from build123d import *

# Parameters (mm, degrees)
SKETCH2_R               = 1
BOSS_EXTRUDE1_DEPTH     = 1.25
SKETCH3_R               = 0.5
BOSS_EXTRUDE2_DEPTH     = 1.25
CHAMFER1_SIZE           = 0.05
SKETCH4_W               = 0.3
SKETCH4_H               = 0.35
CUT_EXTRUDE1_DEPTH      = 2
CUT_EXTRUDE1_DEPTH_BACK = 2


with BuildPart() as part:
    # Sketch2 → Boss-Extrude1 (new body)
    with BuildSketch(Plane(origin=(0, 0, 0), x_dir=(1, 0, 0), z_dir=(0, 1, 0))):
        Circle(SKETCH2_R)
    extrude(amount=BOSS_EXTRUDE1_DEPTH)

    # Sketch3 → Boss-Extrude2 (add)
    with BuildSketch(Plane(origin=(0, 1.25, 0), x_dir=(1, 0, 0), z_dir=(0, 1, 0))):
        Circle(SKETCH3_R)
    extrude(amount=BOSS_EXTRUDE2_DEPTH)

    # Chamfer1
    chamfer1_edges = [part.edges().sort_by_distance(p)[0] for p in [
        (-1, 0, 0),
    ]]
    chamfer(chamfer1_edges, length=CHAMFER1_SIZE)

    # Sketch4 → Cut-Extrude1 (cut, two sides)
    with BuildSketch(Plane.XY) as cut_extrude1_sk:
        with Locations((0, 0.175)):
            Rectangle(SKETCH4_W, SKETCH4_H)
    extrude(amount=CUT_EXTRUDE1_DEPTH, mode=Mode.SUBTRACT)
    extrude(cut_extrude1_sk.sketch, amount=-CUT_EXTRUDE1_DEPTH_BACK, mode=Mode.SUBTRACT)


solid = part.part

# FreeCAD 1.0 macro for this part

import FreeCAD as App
import Part
import Sketcher

V = App.Vector
Q = App.Units.Quantity


def edges_at(feature, points):
    """Names of the edges that pass closest to the given points."""
    edges = feature.Shape.Edges
    near = lambda p: min(range(len(edges)), key=lambda i: edges[i].distToShape(Part.Vertex(*p))[0])
    return sorted({f"Edge{near(p) + 1}" for p in points})

doc = App.newDocument("Part")
body = doc.addObject("PartDesign::Body", "Body")

sketch1 = body.newObject("Sketcher::SketchObject", "Sketch")
sketch1.AttachmentSupport = (doc.getObject("XZ_Plane"), [""])
sketch1.MapMode = "FlatFace"
sketch1.addGeometry(Part.Circle(V(0, 0, 0), V(0, 0, 1), 1), False)
sketch1.addConstraint(Sketcher.Constraint("Coincident", 0, 3, -1, 1))
sketch1.addConstraint(Sketcher.Constraint("Diameter", 0, Q("2 mm")))
pad1 = body.newObject("PartDesign::Pad", "Pad")
pad1.Profile = sketch1
pad1.Length = 1.25
pad1.Reversed = True

sketch2 = body.newObject("Sketcher::SketchObject", "Sketch001")
sketch2.AttachmentSupport = (doc.getObject("XZ_Plane"), [""])
sketch2.MapMode = "FlatFace"
sketch2.AttachmentOffset = App.Placement(V(0, 0, -1.25), App.Rotation())
sketch2.addGeometry(Part.Circle(V(0, 0, 0), V(0, 0, 1), 0.5), False)
sketch2.addConstraint(Sketcher.Constraint("Coincident", 0, 3, -1, 1))
sketch2.addConstraint(Sketcher.Constraint("Diameter", 0, Q("1 mm")))
pad2 = body.newObject("PartDesign::Pad", "Pad001")
pad2.Profile = sketch2
pad2.Length = 1.25
pad2.Reversed = True
doc.recompute()

chamfer = body.newObject("PartDesign::Chamfer", "Chamfer")
chamfer.Base = (pad2, edges_at(pad2, [(-1, 0, 0)]))
chamfer.Size = 0.05

sketch3 = body.newObject("Sketcher::SketchObject", "Sketch002")
sketch3.AttachmentSupport = (doc.getObject("XY_Plane"), [""])
sketch3.MapMode = "FlatFace"
sketch3.addGeometry(Part.LineSegment(V(-0.15, 0.35, 0), V(-0.15, 0, 0)), False)
sketch3.addGeometry(Part.LineSegment(V(-0.15, 0, 0), V(0.15, 0, 0)), False)
sketch3.addGeometry(Part.LineSegment(V(0.15, 0, 0), V(0.15, 0.35, 0)), False)
sketch3.addGeometry(Part.LineSegment(V(0.15, 0.35, 0), V(-0.15, 0.35, 0)), False)
sketch3.addConstraint(Sketcher.Constraint("Coincident", 0, 2, 1, 1))
sketch3.addConstraint(Sketcher.Constraint("Coincident", 1, 2, 2, 1))
sketch3.addConstraint(Sketcher.Constraint("Coincident", 2, 2, 3, 1))
sketch3.addConstraint(Sketcher.Constraint("Coincident", 3, 2, 0, 1))
sketch3.addConstraint(Sketcher.Constraint("Vertical", 0))
sketch3.addConstraint(Sketcher.Constraint("Horizontal", 1))
sketch3.addConstraint(Sketcher.Constraint("Vertical", 2))
sketch3.addConstraint(Sketcher.Constraint("Horizontal", 3))
sketch3.addConstraint(Sketcher.Constraint("Symmetric", 0, 2, 1, 2, -1, 1))
sketch3.addConstraint(Sketcher.Constraint("DistanceX", 1, 1, 1, 2, Q("0.3 mm")))
sketch3.addConstraint(Sketcher.Constraint("DistanceY", 0, 2, 0, 1, Q("0.35 mm")))
pocket1 = body.newObject("PartDesign::Pocket", "Pocket")
pocket1.Profile = sketch3
pocket1.Type = "ThroughAll"
pocket1.Midplane = True

doc.recompute()
